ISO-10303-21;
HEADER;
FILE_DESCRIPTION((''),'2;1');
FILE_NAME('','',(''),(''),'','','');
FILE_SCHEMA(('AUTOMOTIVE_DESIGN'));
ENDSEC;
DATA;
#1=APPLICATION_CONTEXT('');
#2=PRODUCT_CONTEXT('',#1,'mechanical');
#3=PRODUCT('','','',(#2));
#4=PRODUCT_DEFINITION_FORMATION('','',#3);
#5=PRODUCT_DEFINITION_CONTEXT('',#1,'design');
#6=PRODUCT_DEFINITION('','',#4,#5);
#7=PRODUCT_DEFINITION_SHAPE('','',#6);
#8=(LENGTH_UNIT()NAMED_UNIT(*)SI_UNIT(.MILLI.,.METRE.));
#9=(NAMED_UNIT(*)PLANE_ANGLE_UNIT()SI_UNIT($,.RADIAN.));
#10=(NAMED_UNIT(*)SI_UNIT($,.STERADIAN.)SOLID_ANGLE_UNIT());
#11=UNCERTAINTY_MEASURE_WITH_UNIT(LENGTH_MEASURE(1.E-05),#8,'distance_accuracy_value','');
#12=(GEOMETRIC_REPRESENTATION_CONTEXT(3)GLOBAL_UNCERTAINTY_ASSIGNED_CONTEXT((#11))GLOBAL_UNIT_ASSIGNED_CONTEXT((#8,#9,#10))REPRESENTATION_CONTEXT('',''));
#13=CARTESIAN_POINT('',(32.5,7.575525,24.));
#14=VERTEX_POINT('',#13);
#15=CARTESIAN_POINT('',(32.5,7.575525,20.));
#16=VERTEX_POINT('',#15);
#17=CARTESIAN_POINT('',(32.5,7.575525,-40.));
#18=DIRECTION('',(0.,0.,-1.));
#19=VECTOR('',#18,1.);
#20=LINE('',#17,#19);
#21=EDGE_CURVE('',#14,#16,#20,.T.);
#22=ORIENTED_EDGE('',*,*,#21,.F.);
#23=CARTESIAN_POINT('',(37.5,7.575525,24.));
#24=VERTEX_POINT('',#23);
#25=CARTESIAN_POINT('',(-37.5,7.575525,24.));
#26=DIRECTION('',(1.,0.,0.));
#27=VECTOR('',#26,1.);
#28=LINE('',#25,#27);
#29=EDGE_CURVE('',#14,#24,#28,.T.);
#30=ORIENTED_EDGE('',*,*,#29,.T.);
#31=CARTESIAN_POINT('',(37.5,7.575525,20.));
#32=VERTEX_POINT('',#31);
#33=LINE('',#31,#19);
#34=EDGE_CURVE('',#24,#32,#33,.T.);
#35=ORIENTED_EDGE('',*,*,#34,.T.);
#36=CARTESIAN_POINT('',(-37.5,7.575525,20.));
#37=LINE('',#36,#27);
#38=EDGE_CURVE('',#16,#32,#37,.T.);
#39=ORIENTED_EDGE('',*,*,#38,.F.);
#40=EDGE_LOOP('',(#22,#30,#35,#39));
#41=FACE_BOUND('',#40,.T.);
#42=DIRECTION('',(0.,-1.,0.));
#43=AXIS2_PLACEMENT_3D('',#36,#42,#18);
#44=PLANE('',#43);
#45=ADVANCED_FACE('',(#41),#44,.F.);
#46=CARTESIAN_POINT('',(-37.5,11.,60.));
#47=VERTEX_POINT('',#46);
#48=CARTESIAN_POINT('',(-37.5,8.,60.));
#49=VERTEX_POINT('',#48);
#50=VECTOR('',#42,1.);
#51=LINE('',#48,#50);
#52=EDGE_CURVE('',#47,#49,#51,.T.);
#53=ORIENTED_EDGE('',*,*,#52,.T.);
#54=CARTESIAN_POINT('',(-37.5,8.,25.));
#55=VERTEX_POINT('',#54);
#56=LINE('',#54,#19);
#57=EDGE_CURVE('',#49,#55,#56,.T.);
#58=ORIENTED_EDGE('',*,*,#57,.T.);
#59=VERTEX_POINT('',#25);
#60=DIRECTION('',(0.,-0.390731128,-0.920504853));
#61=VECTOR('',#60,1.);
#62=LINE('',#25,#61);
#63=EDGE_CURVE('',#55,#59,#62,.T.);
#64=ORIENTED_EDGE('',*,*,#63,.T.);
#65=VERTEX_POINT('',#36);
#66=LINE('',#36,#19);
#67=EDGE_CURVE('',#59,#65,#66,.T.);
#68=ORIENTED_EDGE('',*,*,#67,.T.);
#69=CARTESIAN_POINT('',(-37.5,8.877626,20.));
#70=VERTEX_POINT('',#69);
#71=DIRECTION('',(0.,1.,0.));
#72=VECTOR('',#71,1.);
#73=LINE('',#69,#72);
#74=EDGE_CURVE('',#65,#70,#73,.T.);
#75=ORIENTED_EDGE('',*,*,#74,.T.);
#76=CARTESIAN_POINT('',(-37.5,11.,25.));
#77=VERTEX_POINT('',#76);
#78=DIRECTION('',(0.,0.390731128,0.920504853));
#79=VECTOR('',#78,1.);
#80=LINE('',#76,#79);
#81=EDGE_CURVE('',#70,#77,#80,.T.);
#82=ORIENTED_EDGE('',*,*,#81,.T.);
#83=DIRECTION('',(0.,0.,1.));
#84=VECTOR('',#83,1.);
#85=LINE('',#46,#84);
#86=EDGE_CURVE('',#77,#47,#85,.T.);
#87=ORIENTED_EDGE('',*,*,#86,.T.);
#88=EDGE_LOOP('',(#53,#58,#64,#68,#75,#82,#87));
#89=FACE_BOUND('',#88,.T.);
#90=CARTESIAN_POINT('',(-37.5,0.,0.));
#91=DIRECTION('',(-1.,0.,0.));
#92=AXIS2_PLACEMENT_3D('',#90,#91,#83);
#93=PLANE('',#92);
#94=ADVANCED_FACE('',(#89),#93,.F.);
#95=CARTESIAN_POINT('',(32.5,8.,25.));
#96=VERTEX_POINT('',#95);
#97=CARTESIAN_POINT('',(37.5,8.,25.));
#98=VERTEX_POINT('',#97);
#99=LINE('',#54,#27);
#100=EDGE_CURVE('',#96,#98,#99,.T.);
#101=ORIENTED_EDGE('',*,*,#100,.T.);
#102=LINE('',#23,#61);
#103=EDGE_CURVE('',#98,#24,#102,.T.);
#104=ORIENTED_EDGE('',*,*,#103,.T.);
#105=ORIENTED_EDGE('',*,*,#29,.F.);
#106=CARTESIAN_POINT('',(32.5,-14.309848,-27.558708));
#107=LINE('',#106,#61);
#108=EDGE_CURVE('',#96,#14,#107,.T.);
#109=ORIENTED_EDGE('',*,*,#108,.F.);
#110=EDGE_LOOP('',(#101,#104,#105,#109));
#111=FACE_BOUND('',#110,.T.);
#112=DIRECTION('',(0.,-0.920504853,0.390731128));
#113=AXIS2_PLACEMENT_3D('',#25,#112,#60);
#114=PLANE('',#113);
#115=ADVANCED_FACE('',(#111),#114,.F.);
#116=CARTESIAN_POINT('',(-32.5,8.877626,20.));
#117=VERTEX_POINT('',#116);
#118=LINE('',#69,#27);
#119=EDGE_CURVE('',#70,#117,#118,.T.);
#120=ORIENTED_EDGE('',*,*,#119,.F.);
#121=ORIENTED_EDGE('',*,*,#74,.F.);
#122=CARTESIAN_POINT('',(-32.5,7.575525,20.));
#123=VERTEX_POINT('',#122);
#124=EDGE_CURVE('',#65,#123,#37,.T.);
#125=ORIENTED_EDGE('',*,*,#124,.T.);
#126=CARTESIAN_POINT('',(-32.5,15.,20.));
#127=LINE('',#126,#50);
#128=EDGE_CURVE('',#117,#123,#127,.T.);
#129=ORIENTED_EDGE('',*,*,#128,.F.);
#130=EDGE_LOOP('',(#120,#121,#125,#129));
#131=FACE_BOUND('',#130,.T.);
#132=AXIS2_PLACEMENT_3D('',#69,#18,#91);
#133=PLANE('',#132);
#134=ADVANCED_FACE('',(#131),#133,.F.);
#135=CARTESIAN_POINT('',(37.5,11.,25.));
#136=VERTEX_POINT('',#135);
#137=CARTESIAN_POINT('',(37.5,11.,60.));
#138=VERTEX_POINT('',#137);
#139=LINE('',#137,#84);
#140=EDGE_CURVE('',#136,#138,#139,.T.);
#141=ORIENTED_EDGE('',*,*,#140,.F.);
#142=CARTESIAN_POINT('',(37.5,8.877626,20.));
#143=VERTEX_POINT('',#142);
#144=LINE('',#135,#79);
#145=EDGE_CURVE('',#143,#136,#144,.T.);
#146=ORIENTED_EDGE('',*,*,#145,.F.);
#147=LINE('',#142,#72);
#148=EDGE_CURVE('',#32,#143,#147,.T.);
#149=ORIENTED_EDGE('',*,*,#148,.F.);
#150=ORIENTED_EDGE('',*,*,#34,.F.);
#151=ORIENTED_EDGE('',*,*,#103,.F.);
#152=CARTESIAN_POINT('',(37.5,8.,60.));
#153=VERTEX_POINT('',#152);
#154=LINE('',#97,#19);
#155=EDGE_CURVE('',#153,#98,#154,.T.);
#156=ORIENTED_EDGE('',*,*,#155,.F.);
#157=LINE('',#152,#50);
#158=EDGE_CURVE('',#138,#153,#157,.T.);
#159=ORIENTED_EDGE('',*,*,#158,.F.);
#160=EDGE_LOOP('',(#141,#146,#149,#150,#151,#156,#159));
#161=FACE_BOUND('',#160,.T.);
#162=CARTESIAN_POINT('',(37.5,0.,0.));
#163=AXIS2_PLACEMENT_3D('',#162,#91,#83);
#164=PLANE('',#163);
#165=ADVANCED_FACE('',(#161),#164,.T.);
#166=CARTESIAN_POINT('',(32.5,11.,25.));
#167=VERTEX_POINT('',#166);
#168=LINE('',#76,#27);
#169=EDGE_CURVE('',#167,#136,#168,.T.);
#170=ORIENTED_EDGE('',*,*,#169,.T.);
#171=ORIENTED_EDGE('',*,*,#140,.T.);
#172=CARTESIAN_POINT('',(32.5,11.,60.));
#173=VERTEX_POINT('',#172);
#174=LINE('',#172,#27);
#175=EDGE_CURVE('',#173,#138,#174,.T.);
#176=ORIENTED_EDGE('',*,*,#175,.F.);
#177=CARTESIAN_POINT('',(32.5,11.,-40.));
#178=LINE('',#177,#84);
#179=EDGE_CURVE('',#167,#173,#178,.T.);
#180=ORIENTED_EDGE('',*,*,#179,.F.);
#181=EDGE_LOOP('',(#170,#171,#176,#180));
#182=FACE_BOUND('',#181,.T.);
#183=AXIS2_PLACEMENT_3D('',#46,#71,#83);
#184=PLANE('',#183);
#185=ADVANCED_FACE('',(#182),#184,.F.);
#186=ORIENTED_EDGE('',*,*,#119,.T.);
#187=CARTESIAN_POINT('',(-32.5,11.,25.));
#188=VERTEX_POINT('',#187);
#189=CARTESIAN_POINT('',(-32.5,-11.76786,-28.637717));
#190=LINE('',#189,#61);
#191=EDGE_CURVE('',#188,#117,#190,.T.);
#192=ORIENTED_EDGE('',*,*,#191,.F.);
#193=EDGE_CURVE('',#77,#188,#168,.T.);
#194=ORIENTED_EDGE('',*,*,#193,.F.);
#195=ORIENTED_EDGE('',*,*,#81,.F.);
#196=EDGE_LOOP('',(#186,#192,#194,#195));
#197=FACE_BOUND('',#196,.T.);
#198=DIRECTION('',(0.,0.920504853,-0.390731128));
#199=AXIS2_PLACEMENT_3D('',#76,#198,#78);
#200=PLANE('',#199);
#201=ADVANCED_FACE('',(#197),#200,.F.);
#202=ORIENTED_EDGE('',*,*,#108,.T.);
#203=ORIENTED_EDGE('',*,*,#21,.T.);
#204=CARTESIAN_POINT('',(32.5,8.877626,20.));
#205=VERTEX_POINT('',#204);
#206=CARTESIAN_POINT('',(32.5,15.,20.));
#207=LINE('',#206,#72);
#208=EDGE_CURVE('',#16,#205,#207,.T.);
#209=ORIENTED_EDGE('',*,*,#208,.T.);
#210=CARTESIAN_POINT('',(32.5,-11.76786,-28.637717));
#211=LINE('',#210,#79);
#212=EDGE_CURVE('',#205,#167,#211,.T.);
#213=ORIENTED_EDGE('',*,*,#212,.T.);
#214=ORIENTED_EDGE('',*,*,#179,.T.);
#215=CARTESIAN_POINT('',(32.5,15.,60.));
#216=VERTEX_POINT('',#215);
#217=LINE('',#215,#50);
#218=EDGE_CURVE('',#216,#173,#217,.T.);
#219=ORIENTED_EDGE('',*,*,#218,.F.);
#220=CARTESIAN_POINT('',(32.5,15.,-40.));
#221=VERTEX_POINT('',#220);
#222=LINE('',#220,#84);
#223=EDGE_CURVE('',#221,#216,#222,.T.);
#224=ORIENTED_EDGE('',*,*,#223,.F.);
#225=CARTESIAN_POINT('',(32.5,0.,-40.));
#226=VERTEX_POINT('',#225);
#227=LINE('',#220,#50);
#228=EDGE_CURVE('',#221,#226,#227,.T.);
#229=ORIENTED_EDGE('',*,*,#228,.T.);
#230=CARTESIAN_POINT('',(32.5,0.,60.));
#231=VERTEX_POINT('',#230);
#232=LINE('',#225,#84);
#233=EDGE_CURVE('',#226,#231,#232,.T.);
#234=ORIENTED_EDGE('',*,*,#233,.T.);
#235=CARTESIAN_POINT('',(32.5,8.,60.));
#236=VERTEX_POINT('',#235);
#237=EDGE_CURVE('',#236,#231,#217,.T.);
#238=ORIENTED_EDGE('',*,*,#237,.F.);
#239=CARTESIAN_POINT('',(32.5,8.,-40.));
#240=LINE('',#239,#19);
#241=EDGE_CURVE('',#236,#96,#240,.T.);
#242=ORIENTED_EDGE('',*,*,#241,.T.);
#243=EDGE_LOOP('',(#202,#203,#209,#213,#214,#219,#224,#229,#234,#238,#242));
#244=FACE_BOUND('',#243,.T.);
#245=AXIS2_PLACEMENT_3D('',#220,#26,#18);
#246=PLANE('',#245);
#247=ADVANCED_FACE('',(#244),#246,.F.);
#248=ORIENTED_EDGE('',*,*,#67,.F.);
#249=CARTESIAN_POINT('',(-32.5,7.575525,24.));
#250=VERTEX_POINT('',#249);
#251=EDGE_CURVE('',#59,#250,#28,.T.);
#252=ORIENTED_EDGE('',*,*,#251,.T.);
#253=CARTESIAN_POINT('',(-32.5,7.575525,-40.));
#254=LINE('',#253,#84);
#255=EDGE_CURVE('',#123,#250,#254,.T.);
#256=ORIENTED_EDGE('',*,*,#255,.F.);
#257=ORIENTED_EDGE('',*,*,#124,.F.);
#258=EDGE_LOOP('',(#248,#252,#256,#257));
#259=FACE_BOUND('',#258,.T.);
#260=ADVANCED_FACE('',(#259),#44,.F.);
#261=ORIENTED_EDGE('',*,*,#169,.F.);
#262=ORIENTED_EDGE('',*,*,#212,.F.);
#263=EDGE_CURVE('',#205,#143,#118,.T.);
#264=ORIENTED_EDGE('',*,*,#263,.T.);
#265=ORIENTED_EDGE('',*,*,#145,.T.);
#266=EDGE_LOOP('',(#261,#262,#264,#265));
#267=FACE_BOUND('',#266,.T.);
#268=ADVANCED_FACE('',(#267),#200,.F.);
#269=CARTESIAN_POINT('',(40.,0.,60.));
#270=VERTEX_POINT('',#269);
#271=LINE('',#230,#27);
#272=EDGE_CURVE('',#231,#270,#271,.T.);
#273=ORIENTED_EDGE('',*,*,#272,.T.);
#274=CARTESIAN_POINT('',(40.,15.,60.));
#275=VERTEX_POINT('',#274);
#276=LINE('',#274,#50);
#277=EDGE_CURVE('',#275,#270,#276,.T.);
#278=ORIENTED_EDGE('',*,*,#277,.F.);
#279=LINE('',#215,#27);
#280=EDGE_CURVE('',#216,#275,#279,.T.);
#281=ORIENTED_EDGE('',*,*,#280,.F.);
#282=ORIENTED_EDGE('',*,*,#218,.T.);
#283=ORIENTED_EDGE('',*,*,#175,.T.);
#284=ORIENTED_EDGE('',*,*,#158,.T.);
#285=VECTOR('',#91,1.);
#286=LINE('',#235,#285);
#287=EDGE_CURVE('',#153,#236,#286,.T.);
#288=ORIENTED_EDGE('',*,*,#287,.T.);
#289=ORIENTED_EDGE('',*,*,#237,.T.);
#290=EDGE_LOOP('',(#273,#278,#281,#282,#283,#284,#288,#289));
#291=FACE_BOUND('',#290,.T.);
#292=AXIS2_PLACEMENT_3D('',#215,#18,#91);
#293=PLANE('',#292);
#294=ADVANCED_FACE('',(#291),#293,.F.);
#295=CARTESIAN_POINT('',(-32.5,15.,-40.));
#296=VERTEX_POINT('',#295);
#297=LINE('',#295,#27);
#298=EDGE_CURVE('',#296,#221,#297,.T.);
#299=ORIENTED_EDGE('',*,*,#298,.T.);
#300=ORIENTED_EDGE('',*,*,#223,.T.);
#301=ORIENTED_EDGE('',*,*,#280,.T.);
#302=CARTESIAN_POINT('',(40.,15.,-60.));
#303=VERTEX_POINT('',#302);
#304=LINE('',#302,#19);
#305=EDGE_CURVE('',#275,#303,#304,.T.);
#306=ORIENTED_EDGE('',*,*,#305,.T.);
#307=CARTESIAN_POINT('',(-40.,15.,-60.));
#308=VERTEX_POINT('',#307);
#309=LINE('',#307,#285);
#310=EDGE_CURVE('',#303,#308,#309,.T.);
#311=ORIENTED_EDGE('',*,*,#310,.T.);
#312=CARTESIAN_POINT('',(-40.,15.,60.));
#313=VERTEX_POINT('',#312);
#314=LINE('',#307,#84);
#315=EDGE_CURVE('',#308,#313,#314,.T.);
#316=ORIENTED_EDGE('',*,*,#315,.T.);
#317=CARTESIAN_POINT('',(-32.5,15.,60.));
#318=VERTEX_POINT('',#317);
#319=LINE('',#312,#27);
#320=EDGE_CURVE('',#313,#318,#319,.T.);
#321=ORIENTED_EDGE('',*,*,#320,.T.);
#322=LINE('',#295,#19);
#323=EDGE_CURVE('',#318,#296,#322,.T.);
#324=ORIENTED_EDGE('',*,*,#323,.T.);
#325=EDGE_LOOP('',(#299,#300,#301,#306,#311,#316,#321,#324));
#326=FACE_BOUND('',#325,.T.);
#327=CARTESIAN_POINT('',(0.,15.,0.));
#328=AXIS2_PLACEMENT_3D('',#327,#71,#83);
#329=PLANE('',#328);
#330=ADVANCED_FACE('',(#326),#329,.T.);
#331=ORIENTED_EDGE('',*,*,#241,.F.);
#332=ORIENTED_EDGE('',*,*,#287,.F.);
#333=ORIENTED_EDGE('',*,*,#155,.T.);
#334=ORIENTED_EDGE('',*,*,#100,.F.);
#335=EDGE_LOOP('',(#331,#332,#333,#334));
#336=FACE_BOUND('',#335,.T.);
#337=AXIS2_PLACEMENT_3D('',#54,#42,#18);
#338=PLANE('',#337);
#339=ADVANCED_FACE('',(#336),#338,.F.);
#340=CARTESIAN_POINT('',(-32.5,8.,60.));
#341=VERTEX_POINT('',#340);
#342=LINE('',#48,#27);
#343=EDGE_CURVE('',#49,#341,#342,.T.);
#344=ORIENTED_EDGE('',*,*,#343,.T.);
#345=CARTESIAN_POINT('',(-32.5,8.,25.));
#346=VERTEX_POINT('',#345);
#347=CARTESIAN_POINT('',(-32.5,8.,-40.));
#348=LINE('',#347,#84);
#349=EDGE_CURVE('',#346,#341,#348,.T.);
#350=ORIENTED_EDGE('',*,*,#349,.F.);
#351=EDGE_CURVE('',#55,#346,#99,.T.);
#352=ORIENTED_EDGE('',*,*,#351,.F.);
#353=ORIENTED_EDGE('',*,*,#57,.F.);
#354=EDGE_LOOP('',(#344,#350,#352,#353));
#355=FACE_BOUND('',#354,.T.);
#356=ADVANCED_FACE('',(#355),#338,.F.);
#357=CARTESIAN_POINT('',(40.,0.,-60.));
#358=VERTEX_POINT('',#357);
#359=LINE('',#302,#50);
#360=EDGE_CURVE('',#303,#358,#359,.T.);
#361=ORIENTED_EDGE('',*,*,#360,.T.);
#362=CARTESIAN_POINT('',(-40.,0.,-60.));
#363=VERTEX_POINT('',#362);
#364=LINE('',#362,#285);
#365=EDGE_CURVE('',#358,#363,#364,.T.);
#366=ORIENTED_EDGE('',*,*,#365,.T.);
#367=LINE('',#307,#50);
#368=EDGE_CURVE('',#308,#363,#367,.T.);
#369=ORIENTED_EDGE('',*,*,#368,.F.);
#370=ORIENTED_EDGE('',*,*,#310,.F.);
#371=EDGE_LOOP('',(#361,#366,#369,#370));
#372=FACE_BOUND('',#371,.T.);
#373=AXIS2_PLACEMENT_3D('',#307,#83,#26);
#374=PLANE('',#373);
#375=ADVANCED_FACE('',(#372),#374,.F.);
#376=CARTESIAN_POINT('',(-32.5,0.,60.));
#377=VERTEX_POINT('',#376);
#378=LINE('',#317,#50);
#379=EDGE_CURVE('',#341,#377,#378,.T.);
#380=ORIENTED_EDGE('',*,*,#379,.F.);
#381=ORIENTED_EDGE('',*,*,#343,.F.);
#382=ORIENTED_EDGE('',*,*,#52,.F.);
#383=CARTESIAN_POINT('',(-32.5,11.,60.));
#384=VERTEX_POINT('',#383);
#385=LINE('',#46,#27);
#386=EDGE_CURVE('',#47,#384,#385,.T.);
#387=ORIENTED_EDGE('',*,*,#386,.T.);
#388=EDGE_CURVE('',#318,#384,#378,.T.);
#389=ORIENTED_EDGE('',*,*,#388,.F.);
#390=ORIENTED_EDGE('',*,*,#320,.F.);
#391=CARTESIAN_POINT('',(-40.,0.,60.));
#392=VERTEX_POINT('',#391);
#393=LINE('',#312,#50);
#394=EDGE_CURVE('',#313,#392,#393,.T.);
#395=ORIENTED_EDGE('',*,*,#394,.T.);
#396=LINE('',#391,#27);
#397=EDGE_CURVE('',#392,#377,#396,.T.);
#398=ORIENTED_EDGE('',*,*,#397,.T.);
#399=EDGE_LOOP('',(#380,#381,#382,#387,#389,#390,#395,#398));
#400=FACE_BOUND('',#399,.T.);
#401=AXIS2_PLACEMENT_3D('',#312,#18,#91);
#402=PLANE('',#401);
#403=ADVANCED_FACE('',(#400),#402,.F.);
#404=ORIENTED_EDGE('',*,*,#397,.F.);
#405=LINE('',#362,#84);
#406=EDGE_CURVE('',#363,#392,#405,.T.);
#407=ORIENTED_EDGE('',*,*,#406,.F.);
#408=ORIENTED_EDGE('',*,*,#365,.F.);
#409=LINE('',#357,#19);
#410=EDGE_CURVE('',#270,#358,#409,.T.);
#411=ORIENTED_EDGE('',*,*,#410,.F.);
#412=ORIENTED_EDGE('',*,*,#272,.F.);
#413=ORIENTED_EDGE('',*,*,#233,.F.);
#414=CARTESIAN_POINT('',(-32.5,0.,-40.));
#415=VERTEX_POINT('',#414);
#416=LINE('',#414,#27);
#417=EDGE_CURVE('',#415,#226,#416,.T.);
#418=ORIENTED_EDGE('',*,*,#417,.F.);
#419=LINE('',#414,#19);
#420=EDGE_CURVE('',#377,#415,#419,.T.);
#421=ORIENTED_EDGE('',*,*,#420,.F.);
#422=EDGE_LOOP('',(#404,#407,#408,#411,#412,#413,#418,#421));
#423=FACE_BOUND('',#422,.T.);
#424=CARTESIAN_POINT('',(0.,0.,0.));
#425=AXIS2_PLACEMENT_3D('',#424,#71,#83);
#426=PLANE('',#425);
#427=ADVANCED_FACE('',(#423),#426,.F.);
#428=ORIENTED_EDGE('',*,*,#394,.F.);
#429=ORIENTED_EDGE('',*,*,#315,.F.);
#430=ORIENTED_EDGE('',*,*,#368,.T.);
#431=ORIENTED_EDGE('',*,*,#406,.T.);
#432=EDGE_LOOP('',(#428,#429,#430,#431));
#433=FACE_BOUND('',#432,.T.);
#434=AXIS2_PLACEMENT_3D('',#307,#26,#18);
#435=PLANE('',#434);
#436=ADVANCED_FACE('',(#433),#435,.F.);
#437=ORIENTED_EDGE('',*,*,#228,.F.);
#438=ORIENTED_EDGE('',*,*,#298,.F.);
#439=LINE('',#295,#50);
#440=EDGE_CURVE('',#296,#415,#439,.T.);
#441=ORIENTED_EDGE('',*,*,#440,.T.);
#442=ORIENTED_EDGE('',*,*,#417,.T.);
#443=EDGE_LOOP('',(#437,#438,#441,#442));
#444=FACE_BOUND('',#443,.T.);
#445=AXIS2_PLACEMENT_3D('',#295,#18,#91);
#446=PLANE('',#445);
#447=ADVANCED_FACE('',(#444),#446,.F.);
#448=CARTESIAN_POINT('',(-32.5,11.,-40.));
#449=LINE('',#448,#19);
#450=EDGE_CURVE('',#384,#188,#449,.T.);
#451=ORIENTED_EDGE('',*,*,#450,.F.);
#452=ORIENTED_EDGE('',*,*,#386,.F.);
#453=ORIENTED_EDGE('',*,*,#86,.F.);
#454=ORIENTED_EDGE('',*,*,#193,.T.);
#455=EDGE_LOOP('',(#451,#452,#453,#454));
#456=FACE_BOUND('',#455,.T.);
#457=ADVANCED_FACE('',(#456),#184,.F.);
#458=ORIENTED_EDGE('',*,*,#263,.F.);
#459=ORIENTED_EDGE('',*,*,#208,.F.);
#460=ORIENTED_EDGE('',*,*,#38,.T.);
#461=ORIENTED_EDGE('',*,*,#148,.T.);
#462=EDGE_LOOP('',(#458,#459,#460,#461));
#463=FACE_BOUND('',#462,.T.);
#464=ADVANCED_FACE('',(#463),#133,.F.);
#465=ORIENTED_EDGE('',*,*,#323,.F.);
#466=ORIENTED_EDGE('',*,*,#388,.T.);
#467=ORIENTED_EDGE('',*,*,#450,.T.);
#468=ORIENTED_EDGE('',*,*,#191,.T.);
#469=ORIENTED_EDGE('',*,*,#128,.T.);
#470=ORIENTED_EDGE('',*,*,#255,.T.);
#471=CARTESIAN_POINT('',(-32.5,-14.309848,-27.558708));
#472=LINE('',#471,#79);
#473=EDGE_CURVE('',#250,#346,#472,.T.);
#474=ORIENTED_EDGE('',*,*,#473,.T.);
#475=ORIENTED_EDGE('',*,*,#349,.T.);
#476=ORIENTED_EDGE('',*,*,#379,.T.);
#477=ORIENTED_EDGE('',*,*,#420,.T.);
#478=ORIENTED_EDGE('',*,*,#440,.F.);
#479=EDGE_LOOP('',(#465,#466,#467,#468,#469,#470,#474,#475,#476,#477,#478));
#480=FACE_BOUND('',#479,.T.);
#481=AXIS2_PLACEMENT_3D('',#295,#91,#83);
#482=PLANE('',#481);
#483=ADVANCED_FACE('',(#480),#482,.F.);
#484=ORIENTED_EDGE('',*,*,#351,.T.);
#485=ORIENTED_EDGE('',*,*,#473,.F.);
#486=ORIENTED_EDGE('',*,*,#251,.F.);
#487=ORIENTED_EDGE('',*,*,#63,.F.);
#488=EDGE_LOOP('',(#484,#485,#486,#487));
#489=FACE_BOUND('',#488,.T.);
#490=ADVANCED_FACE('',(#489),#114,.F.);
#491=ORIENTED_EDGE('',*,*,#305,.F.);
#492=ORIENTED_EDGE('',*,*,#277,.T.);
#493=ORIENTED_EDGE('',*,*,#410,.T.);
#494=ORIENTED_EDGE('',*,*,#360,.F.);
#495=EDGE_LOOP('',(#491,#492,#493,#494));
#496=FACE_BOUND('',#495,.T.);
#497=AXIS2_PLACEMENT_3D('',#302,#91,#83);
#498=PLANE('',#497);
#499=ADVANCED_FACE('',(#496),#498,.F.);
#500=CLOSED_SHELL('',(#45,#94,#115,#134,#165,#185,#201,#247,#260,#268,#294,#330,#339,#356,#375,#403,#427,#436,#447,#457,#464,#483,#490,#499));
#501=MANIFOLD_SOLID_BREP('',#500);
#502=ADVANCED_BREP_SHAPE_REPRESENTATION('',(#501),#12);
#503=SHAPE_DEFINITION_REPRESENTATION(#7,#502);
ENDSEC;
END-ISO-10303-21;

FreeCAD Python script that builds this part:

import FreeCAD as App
import Part
import Sketcher
Q = App.Units.Quantity


def add_polygon(sketch, points):
    """Adds a closed chain of lines whose ends are joined by coincident constraints."""
    first, n = sketch.GeometryCount, len(points)
    for a, b in zip(points, points[1:] + points[:1]):
        sketch.addGeometry(Part.LineSegment(App.Vector(*a, 0), App.Vector(*b, 0)), False)
    for i in range(n):
        sketch.addConstraint(Sketcher.Constraint("Coincident", first + i, 2, first + (i + 1) % n, 1))

doc = App.newDocument("Part")
body = doc.addObject("PartDesign::Body", "Body")

sketch1 = body.newObject("Sketcher::SketchObject", "Sketch")
sketch1.AttachmentSupport = (doc.getObject("XZ_Plane"), [""])
sketch1.MapMode = "FlatFace"
add_polygon(sketch1, [(32.5, 60), (40, 60), (40, -60), (-40, -60), (-40, 60), (-32.5, 60), (-32.5, -40), (32.5, -40)])
sketch1.addConstraint(Sketcher.Constraint("Horizontal", 0))
sketch1.addConstraint(Sketcher.Constraint("Vertical", 1))
sketch1.addConstraint(Sketcher.Constraint("Horizontal", 2))
sketch1.addConstraint(Sketcher.Constraint("Vertical", 3))
sketch1.addConstraint(Sketcher.Constraint("Horizontal", 4))
sketch1.addConstraint(Sketcher.Constraint("Vertical", 5))
sketch1.addConstraint(Sketcher.Constraint("Horizontal", 6))
sketch1.addConstraint(Sketcher.Constraint("Vertical", 7))
sketch1.addConstraint(Sketcher.Constraint("Symmetric", 0, 2, 2, 2, -1, 1))
sketch1.addConstraint(Sketcher.Constraint("Symmetric", 4, 2, 7, 2, -2))
sketch1.addConstraint(Sketcher.Constraint("DistanceX", 2, 2, 2, 1, Q("80 mm")))
sketch1.addConstraint(Sketcher.Constraint("DistanceX", 6, 1, 6, 2, Q("65 mm")))
sketch1.addConstraint(Sketcher.Constraint("DistanceY", 1, 2, 1, 1, Q("120 mm")))
sketch1.addConstraint(Sketcher.Constraint("DistanceY", 5, 2, 5, 1, Q("100 mm")))
pad1 = body.newObject("PartDesign::Pad", "Pad")
pad1.Profile = sketch1
pad1.Length = 15
pad1.Reversed = True

sketch2 = body.newObject("Sketcher::SketchObject", "Sketch001")
sketch2.AttachmentSupport = (doc.getObject("YZ_Plane"), [""])
sketch2.MapMode = "FlatFace"
add_polygon(sketch2, [(11, 25), (11, 60), (8, 60), (8, 25), (7.575525, 24), (7.575525, 20), (8.877626, 20)])
sketch2.addConstraint(Sketcher.Constraint("Vertical", 0))
sketch2.addConstraint(Sketcher.Constraint("Horizontal", 1))
sketch2.addConstraint(Sketcher.Constraint("Vertical", 2))
sketch2.addConstraint(Sketcher.Constraint("Vertical", 4))
sketch2.addConstraint(Sketcher.Constraint("Horizontal", 5))
sketch2.addConstraint(Sketcher.Constraint("Parallel", 3, 6))
sketch2.addConstraint(Sketcher.Constraint("Horizontal", 2, 2, 6, 2))
sketch2.addConstraint(Sketcher.Constraint("DistanceX", 1, 2, 1, 1, Q("3 mm")))
sketch2.addConstraint(Sketcher.Constraint("DistanceY", 0, 1, 0, 2, Q("35 mm")))
sketch2.addConstraint(Sketcher.Constraint("DistanceY", 4, 2, 4, 1, Q("4 mm")))
sketch2.addConstraint(Sketcher.Constraint("Angle", 3, Q("-113 deg")))
sketch2.addConstraint(Sketcher.Constraint("DistanceX", -1, 1, 0, 2, Q("11 mm")))
sketch2.addConstraint(Sketcher.Constraint("DistanceY", -1, 1, 0, 2, Q("60 mm")))
sketch2.addConstraint(Sketcher.Constraint("DistanceY", -1, 1, 3, 2, Q("24 mm")))
pocket1 = body.newObject("PartDesign::Pocket", "Pocket")
pocket1.Profile = sketch2
pocket1.Length = 75
pocket1.Midplane = True

doc.recompute()
